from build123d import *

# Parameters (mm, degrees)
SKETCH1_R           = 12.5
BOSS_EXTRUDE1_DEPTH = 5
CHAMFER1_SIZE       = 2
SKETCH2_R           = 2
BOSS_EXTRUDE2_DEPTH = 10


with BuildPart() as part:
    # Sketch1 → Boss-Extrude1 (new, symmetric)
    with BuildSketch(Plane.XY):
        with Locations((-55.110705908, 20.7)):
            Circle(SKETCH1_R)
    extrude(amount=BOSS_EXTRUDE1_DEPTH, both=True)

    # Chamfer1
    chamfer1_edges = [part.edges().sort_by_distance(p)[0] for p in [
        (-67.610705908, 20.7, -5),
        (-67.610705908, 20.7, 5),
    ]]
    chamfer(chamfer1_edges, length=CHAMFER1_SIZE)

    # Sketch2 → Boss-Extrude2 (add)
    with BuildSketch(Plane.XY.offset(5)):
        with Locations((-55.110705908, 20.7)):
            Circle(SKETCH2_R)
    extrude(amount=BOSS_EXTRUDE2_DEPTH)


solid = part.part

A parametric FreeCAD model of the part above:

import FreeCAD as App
import Part
import Sketcher
from FreeCAD import Vector
Q = App.Units.Quantity


def edges_at(feature, points):
    """Names of the edges that pass closest to the given points."""
    edges = feature.Shape.Edges
    near = lambda p: min(range(len(edges)), key=lambda i: edges[i].distToShape(Part.Vertex(*p))[0])
    return sorted({f"Edge{near(p) + 1}" for p in points})

doc = App.newDocument("Part")
body = doc.addObject("PartDesign::Body", "Body")

sketch1 = body.newObject("Sketcher::SketchObject", "Sketch")
sketch1.AttachmentSupport = (doc.getObject("XY_Plane"), [""])
sketch1.MapMode = "FlatFace"
sketch1.addGeometry(Part.Circle(Vector(-55.110706, 20.7, 0), Vector(0, 0, 1), 12.5), False)
sketch1.addConstraint([
    Sketcher.Constraint("Diameter", 0, Q("25 mm")),
    Sketcher.Constraint("DistanceY", -1, 1, 0, 3, Q("20.7 mm")),
    Sketcher.Constraint("DistanceX", 0, 3, -1, 1, Q("55.110706 mm")),
])
pad1 = body.newObject("PartDesign::Pad", "Pad")
pad1.Profile = sketch1
pad1.Length = 10
pad1.Midplane = True
doc.recompute()

chamfer = body.newObject("PartDesign::Chamfer", "Chamfer")
chamfer.Base = (pad1, edges_at(pad1, [(-67.611, 20.7, -5), (-67.611, 20.7, 5)]))
chamfer.Size = 2

sketch2 = body.newObject("Sketcher::SketchObject", "Sketch001")
sketch2.AttachmentSupport = (doc.getObject("XY_Plane"), [""])
sketch2.MapMode = "FlatFace"
sketch2.AttachmentOffset = App.Placement(Vector(0, 0, 5), App.Rotation())
sketch2.addGeometry(Part.Circle(Vector(-55.110706, 20.7, 0), Vector(0, 0, 1), 2), False)
sketch2.addConstraint([
    Sketcher.Constraint("Diameter", 0, Q("4 mm")),
    Sketcher.Constraint("DistanceY", -1, 1, 0, 3, Q("20.7 mm")),
    Sketcher.Constraint("DistanceX", 0, 3, -1, 1, Q("55.110706 mm")),
])
pad2 = body.newObject("PartDesign::Pad", "Pad001")
pad2.Profile = sketch2
pad2.Length = 10

doc.recompute()
